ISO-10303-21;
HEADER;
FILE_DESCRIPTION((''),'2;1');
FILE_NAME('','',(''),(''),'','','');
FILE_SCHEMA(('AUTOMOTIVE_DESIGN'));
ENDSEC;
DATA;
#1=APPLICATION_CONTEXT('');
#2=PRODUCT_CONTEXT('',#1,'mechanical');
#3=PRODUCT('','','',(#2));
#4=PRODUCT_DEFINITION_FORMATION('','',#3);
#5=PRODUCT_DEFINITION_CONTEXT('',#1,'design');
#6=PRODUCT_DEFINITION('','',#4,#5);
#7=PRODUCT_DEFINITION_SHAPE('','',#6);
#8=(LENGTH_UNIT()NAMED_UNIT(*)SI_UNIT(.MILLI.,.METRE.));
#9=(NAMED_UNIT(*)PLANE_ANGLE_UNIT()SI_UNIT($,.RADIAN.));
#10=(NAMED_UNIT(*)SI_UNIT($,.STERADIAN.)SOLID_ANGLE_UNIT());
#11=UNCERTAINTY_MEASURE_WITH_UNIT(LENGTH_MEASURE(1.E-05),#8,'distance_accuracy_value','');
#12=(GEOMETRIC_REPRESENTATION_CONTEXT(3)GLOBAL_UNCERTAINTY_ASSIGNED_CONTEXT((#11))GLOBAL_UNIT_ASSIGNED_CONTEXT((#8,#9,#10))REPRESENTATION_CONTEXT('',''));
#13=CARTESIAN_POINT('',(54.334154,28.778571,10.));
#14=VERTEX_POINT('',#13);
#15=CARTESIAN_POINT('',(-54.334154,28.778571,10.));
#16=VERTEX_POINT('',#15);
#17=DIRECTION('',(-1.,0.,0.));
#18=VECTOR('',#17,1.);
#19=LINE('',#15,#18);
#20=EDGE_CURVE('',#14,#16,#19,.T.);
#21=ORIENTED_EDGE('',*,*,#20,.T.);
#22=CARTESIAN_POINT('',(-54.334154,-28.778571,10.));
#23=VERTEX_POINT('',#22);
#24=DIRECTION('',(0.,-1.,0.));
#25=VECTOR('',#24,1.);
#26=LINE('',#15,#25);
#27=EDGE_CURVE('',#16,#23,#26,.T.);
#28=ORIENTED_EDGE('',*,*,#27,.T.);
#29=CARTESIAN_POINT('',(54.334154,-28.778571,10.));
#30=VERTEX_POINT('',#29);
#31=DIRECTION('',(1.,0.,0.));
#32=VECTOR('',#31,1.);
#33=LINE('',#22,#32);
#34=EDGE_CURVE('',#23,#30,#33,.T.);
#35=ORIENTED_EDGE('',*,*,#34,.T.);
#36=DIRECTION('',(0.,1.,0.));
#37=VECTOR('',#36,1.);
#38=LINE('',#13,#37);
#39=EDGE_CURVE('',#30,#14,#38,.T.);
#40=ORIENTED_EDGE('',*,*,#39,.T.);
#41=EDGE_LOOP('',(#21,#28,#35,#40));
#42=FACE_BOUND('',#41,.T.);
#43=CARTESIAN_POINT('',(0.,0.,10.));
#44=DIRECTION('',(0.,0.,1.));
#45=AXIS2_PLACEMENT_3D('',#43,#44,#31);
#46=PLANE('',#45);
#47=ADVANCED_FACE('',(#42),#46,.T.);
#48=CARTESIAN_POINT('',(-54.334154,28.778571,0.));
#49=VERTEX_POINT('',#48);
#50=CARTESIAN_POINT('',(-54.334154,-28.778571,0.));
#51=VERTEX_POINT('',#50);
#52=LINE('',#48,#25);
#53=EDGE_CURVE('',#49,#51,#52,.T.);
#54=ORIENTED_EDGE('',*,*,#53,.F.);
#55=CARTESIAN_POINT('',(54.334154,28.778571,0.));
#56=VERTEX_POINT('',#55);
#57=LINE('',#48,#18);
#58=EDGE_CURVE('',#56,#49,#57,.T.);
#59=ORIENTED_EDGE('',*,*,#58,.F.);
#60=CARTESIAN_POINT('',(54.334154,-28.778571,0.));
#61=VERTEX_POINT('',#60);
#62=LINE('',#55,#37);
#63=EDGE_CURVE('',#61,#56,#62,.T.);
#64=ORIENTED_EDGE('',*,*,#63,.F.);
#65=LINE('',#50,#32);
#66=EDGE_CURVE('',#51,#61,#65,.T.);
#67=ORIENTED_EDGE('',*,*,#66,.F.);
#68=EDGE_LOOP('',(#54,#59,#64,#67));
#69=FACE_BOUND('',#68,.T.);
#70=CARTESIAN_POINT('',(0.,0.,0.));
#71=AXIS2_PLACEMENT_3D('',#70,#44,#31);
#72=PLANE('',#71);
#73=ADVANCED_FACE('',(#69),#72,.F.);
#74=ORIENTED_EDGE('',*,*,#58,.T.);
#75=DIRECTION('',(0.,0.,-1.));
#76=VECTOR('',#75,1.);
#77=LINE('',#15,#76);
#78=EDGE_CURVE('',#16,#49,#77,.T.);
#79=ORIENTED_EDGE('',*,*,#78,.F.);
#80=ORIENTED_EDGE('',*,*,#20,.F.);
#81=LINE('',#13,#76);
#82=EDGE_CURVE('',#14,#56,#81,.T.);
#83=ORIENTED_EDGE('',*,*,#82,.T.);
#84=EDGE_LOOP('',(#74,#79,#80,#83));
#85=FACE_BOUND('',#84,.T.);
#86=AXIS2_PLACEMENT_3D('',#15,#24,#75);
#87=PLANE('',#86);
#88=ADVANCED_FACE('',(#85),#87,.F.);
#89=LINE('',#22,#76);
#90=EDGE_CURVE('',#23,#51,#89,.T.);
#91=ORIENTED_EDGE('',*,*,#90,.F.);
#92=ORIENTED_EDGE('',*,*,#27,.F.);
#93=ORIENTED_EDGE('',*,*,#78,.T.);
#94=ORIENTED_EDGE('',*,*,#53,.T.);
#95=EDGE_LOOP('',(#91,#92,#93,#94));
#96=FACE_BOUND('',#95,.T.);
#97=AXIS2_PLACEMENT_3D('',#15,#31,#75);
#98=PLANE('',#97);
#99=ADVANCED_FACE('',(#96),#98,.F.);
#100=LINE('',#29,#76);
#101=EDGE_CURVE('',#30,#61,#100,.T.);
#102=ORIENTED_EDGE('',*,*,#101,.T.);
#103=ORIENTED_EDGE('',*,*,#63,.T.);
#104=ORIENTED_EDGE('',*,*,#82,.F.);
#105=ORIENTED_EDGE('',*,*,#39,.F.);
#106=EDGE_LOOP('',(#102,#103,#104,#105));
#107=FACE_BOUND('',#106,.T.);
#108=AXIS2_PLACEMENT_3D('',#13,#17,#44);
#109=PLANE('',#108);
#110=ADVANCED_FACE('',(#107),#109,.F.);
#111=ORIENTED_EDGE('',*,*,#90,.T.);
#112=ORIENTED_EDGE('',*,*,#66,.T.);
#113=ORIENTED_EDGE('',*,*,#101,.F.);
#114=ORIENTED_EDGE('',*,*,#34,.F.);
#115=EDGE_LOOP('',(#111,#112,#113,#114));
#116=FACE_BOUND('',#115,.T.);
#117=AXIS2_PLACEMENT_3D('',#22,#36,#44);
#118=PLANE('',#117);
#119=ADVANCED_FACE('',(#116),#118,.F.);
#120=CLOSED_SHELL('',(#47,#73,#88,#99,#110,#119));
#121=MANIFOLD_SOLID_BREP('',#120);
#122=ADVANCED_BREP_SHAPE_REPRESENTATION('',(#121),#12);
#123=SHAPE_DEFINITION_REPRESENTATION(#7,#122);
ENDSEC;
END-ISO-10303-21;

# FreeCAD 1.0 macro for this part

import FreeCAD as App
import Part
import Sketcher
from FreeCAD import Vector


def add_polygon(sketch, points):
    """Adds a closed chain of lines whose ends are joined by coincident constraints."""
    first, n = sketch.GeometryCount, len(points)
    for a, b in zip(points, points[1:] + points[:1]):
        sketch.addGeometry(Part.LineSegment(App.Vector(*a, 0), App.Vector(*b, 0)), False)
    for i in range(n):
        sketch.addConstraint(Sketcher.Constraint("Coincident", first + i, 2, first + (i + 1) % n, 1))

doc = App.newDocument("Part")
body = doc.addObject("PartDesign::Body", "Body")

# Sketch on XY plane
sketch1 = body.newObject("Sketcher::SketchObject", "Sketch")
sketch1.AttachmentSupport = (doc.getObject("XY_Plane"), [""])
sketch1.MapMode = "FlatFace"
add_polygon(sketch1, [(-54, 29), (-54, -29), (54, -29), (54, 29)])  # lines 0-3
sketch1.addConstraint(Sketcher.Constraint("Vertical", 0))
sketch1.addConstraint(Sketcher.Constraint("Horizontal", 1))
sketch1.addConstraint(Sketcher.Constraint("Vertical", 2))
sketch1.addConstraint(Sketcher.Constraint("Horizontal", 3))
sketch1.addConstraint(Sketcher.Constraint("Symmetric", 0, 2, 2, 2, -1, 1))
sketch1.addConstraint(Sketcher.Constraint("DistanceX", 1, 1, 1, 2, 108.668308))
sketch1.addConstraint(Sketcher.Constraint("DistanceY", 0, 2, 0, 1, 57.557143))
pad1 = body.newObject("PartDesign::Pad", "Pad")
pad1.Profile = sketch1
pad1.Length = 10

doc.recompute()
